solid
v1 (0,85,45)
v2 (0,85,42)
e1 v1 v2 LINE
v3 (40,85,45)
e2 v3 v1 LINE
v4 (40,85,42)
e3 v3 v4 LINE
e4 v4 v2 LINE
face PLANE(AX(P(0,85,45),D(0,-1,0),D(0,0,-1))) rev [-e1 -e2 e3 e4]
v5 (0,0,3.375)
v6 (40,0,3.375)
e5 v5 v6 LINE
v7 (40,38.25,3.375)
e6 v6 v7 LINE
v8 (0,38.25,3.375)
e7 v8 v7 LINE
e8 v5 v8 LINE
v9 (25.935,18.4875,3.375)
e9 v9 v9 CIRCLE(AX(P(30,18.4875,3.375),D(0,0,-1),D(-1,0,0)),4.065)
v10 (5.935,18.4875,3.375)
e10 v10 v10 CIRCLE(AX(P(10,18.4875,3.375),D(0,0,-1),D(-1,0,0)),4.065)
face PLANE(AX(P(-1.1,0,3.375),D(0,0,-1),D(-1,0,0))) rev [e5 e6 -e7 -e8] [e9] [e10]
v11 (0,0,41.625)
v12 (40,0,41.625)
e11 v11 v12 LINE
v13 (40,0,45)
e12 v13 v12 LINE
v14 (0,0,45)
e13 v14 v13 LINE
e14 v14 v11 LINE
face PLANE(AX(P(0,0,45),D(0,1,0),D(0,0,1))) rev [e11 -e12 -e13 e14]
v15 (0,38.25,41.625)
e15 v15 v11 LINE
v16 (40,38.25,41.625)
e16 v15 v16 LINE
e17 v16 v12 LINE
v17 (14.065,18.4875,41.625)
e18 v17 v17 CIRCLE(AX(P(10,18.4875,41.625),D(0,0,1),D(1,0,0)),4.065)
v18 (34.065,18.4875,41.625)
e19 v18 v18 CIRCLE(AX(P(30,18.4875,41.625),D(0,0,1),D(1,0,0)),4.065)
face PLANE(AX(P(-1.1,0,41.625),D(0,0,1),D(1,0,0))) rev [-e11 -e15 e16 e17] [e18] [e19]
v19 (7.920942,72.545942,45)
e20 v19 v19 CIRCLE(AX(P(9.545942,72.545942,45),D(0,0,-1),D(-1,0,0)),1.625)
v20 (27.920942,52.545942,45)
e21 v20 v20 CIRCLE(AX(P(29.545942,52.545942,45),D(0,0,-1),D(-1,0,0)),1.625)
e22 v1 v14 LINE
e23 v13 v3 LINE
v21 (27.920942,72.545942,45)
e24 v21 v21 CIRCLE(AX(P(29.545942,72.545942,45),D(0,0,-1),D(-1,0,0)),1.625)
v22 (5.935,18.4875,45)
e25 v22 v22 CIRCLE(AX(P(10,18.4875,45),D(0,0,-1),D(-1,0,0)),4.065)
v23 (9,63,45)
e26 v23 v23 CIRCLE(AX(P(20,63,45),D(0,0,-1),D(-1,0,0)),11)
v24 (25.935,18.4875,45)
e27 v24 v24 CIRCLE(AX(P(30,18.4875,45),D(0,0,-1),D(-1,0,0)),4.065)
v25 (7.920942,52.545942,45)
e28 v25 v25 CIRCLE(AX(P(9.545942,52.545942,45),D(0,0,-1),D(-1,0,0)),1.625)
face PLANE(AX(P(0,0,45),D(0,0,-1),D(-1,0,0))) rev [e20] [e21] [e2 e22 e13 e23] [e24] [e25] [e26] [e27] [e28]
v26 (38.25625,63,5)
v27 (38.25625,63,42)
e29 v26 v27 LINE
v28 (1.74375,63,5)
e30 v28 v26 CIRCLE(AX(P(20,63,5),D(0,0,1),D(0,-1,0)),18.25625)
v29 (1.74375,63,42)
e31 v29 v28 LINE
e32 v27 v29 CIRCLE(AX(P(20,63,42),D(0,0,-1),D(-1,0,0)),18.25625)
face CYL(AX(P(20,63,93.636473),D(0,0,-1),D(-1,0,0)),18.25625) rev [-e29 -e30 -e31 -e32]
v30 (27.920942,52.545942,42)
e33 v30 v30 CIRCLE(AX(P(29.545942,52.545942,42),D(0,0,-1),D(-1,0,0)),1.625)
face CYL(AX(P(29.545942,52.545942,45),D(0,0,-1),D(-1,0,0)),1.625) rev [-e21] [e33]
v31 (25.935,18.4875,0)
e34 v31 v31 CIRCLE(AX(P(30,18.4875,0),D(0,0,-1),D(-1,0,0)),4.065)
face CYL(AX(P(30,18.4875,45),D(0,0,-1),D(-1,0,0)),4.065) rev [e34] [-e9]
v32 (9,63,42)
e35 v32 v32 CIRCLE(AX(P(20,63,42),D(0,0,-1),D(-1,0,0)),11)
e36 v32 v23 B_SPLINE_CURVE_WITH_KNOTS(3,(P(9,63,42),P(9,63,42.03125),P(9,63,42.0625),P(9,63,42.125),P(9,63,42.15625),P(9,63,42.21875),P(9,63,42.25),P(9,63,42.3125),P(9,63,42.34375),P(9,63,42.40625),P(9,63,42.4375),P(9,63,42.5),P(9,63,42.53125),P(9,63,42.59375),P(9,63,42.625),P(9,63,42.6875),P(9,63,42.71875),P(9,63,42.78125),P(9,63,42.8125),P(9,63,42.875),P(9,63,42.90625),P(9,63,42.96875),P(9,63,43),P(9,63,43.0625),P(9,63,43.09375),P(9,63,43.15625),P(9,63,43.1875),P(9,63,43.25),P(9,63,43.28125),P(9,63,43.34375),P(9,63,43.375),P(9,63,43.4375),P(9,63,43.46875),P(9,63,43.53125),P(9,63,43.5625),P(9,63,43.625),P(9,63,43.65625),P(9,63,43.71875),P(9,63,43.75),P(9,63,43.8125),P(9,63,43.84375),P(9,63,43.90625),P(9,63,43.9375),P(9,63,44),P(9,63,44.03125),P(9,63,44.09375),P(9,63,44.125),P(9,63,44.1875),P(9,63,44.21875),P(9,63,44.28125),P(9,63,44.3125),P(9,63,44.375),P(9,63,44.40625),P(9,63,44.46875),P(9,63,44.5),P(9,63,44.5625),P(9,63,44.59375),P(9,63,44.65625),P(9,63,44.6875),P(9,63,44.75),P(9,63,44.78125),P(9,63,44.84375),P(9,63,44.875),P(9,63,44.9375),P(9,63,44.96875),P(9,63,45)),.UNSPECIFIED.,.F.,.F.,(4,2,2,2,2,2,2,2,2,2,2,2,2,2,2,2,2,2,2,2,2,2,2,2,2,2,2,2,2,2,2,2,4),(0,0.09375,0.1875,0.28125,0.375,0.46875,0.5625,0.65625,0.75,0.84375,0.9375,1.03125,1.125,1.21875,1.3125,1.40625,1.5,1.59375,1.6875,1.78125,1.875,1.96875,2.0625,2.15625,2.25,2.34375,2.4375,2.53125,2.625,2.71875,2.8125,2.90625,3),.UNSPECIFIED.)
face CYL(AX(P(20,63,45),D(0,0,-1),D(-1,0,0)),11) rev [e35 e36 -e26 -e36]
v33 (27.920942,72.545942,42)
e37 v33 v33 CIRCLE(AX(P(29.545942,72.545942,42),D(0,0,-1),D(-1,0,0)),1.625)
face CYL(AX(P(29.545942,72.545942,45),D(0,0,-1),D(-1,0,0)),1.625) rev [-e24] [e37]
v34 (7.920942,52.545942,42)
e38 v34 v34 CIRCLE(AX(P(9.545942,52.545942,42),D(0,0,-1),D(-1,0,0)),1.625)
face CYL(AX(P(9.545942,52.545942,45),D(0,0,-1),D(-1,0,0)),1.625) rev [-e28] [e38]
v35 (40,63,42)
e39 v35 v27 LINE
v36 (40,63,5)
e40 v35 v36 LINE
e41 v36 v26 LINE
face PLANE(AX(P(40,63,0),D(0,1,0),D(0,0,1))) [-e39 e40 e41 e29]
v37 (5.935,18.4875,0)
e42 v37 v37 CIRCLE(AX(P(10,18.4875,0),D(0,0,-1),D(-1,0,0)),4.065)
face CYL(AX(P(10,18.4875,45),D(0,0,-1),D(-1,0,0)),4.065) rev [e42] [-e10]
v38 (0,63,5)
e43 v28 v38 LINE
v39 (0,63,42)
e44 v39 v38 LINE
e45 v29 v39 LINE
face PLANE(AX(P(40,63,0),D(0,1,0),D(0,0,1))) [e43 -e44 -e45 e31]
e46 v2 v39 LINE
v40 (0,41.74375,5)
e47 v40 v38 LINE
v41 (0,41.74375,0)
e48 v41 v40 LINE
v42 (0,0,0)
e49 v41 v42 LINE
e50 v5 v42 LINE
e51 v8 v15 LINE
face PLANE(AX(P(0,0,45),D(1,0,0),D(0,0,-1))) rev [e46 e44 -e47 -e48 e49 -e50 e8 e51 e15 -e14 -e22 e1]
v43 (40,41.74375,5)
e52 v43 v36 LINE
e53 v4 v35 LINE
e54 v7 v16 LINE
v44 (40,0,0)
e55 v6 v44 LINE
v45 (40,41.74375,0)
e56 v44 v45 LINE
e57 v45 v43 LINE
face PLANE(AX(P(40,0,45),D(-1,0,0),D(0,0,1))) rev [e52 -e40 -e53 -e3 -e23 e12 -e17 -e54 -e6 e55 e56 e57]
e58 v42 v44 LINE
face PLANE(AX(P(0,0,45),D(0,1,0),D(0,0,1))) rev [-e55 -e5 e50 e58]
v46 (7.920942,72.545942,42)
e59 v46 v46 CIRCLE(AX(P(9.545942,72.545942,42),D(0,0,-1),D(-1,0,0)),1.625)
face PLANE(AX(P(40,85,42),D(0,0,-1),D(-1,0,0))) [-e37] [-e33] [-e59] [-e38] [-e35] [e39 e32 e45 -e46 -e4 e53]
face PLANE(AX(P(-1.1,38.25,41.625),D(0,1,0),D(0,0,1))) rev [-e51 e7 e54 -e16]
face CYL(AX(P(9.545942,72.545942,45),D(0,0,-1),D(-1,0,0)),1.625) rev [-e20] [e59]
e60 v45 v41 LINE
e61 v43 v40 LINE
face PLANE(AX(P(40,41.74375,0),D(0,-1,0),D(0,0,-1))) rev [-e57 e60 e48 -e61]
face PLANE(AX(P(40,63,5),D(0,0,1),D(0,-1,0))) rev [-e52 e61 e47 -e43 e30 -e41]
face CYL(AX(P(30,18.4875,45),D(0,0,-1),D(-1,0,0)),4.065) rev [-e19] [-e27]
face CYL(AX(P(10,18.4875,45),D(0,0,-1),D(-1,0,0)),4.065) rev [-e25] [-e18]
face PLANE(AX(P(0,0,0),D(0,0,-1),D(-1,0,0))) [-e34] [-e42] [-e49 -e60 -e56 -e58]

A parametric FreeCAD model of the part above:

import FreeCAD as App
import Part
import Sketcher


def add_polygon(sketch, points):
    """Adds a closed chain of lines whose ends are joined by coincident constraints."""
    first, n = sketch.GeometryCount, len(points)
    for a, b in zip(points, points[1:] + points[:1]):
        sketch.addGeometry(Part.LineSegment(App.Vector(*a, 0), App.Vector(*b, 0)), False)
    for i in range(n):
        sketch.addConstraint(Sketcher.Constraint("Coincident", first + i, 2, first + (i + 1) % n, 1))

doc = App.newDocument("Part")
body = doc.addObject("PartDesign::Body", "Body")

# Sketch on XY plane
sketch1 = doc.addObject("Sketcher::SketchObject", "Sketch")
body.addObject(sketch1)
sketch1.AttachmentSupport = (doc.XY_Plane, [""])
sketch1.MapMode = "FlatFace"
add_polygon(sketch1, [(0, 85), (0, 0), (40, 0), (40, 85)])  # lines 0-3
sketch1.addConstraint(Sketcher.Constraint("Vertical", 0))
sketch1.addConstraint(Sketcher.Constraint("Horizontal", 1))
sketch1.addConstraint(Sketcher.Constraint("Vertical", 2))
sketch1.addConstraint(Sketcher.Constraint("Horizontal", 3))
sketch1.addConstraint(Sketcher.Constraint("Coincident", 0, 2, -1, 1))
sketch1.addConstraint(Sketcher.Constraint("DistanceX", 1, 1, 1, 2, 40.0))
sketch1.addConstraint(Sketcher.Constraint("DistanceY", 0, 2, 0, 1, 85.0))
pad1 = doc.addObject("PartDesign::Pad", "Pad")
body.addObject(pad1)
pad1.Profile = sketch1
pad1.Length = 45

# Sketch on YZ plane
sketch2 = doc.addObject("Sketcher::SketchObject", "Sketch001")
body.addObject(sketch2)
sketch2.AttachmentSupport = (doc.YZ_Plane, [""])
sketch2.MapMode = "FlatFace"
sketch2.AttachmentOffset = App.Placement(App.Vector(0, 0, 40), App.Rotation())
add_polygon(sketch2, [(38, 42), (0, 42), (0, 3), (38, 3)])  # lines 0-3
sketch2.addConstraint(Sketcher.Constraint("Horizontal", 0))
sketch2.addConstraint(Sketcher.Constraint("Vertical", 1))
sketch2.addConstraint(Sketcher.Constraint("Horizontal", 2))
sketch2.addConstraint(Sketcher.Constraint("Vertical", 3))
sketch2.addConstraint(Sketcher.Constraint("PointOnObject", 0, 2, -2))
sketch2.addConstraint(Sketcher.Constraint("Equal", 2, 1))
sketch2.addConstraint(Sketcher.Constraint("DistanceX", 0, 2, 0, 1, 38.25))
sketch2.addConstraint(Sketcher.Constraint("DistanceY", -1, 1, 0, 2, 41.625))
pocket1 = doc.addObject("PartDesign::Pocket", "Pocket")
body.addObject(pocket1)
pocket1.Profile = sketch2
pocket1.Length = 41.1

# Sketch on YZ plane
sketch3 = doc.addObject("Sketcher::SketchObject", "Sketch002")
body.addObject(sketch3)
sketch3.AttachmentSupport = (doc.YZ_Plane, [""])
sketch3.MapMode = "FlatFace"
add_polygon(sketch3, [(85, 42), (63, 42), (63, 0), (85, 0)])  # lines 0-3
sketch3.addConstraint(Sketcher.Constraint("Horizontal", 0))
sketch3.addConstraint(Sketcher.Constraint("Vertical", 1))
sketch3.addConstraint(Sketcher.Constraint("Horizontal", 2))
sketch3.addConstraint(Sketcher.Constraint("Vertical", 3))
sketch3.addConstraint(Sketcher.Constraint("PointOnObject", 1, 2, -1))
sketch3.addConstraint(Sketcher.Constraint("DistanceX", 0, 2, 0, 1, 22.0))
sketch3.addConstraint(Sketcher.Constraint("DistanceY", 1, 2, 1, 1, 42.0))
sketch3.addConstraint(Sketcher.Constraint("DistanceX", -1, 1, 0, 2, 63.0))
pocket2 = doc.addObject("PartDesign::Pocket", "Pocket001")
body.addObject(pocket2)
pocket2.Profile = sketch3
pocket2.Type = "ThroughAll"
pocket2.Reversed = True

# Sketch on XY plane
sketch4 = doc.addObject("Sketcher::SketchObject", "Sketch003")
body.addObject(sketch4)
sketch4.AttachmentSupport = (doc.XY_Plane, [""])
sketch4.MapMode = "FlatFace"
sketch4.addGeometry(Part.Circle(App.Vector(20, 63, 0), App.Vector(0, 0, 1), 18), False)
sketch4.addConstraint(Sketcher.Constraint("DistanceX", -1, 1, 0, 3, 20.0))
sketch4.addConstraint(Sketcher.Constraint("DistanceY", -1, 1, 0, 3, 63.0))
sketch4.addConstraint(Sketcher.Constraint("Diameter", 0, 36.5125))
pocket3 = doc.addObject("PartDesign::Pocket", "Pocket002")
body.addObject(pocket3)
pocket3.Profile = sketch4
pocket3.Length = 42
pocket3.Reversed = True

# Sketch on XY plane
sketch5 = doc.addObject("Sketcher::SketchObject", "Sketch004")
body.addObject(sketch5)
sketch5.AttachmentSupport = (doc.XY_Plane, [""])
sketch5.MapMode = "FlatFace"
sketch5.addGeometry(Part.Circle(App.Vector(20, 63, 0), App.Vector(0, 0, 1), 11), False)
sketch5.addConstraint(Sketcher.Constraint("Diameter", 0, 22.0))
sketch5.addConstraint(Sketcher.Constraint("DistanceX", -1, 1, 0, 3, 20.0))
sketch5.addConstraint(Sketcher.Constraint("DistanceY", -1, 1, 0, 3, 63.0))
pocket4 = doc.addObject("PartDesign::Pocket", "Pocket003")
body.addObject(pocket4)
pocket4.Profile = sketch5
pocket4.Type = "ThroughAll"
pocket4.Midplane = True

# Sketch on XY plane
sketch6 = doc.addObject("Sketcher::SketchObject", "Sketch005")
body.addObject(sketch6)
sketch6.AttachmentSupport = (doc.XY_Plane, [""])
sketch6.MapMode = "FlatFace"
sketch6.AttachmentOffset = App.Placement(App.Vector(0, 0, 42), App.Rotation())
sketch6.addGeometry(Part.Circle(App.Vector(29.5, 72.5, 0), App.Vector(0, 0, 1), 1.6), False)
sketch6.addGeometry(Part.Circle(App.Vector(29.5, 52.5, 0), App.Vector(0, 0, 1), 1.6), False)
sketch6.addGeometry(Part.Circle(App.Vector(9.5, 52.5, 0), App.Vector(0, 0, 1), 1.6), False)
sketch6.addGeometry(Part.Circle(App.Vector(9.5, 72.5, 0), App.Vector(0, 0, 1), 1.6), False)
sketch6.addConstraint(Sketcher.Constraint("Equal", 0, 1))
sketch6.addConstraint(Sketcher.Constraint("Equal", 1, 2))
sketch6.addConstraint(Sketcher.Constraint("Equal", 2, 3))
sketch6.addConstraint(Sketcher.Constraint("Horizontal", 1, 3, 2, 3))
sketch6.addConstraint(Sketcher.Constraint("Horizontal", 0, 3, 3, 3))
sketch6.addConstraint(Sketcher.Constraint("Vertical", 0, 3, 1, 3))
sketch6.addConstraint(Sketcher.Constraint("Vertical", 2, 3, 3, 3))
sketch6.addConstraint(Sketcher.Constraint("Diameter", 0, 3.25))
sketch6.addConstraint(Sketcher.Constraint("DistanceY", 1, 3, 0, 3, 20.0))
sketch6.addConstraint(Sketcher.Constraint("DistanceX", 2, 3, 1, 3, 20.0))
sketch6.addConstraint(Sketcher.Constraint("DistanceX", -1, 1, 0, 3, 29.545942))
sketch6.addConstraint(Sketcher.Constraint("DistanceY", -1, 1, 0, 3, 72.545942))
pocket5 = doc.addObject("PartDesign::Pocket", "Pocket004")
body.addObject(pocket5)
pocket5.Profile = sketch6
pocket5.Type = "ThroughAll"
pocket5.Reversed = True

# Sketch on XY plane
sketch7 = doc.addObject("Sketcher::SketchObject", "Sketch006")
body.addObject(sketch7)
sketch7.AttachmentSupport = (doc.XY_Plane, [""])
sketch7.MapMode = "FlatFace"
sketch7.AttachmentOffset = App.Placement(App.Vector(0, 0, 41.625), App.Rotation())
sketch7.addGeometry(Part.Circle(App.Vector(10, 18.5, 0), App.Vector(0, 0, 1), 4.1), False)
sketch7.addGeometry(Part.Circle(App.Vector(30, 18.5, 0), App.Vector(0, 0, 1), 4.1), False)
sketch7.addConstraint(Sketcher.Constraint("Equal", 0, 1))
sketch7.addConstraint(Sketcher.Constraint("Horizontal", 0, 3, 1, 3))
sketch7.addConstraint(Sketcher.Constraint("Diameter", 0, 8.13))
sketch7.addConstraint(Sketcher.Constraint("DistanceX", -1, 1, 0, 3, 10.0))
sketch7.addConstraint(Sketcher.Constraint("DistanceX", -1, 1, 1, 3, 30.0))
sketch7.addConstraint(Sketcher.Constraint("DistanceY", -1, 1, 0, 3, 18.4875))
pocket6 = doc.addObject("PartDesign::Pocket", "Pocket005")
body.addObject(pocket6)
pocket6.Profile = sketch7
pocket6.Type = "ThroughAll"
pocket6.Midplane = True

# Sketch on YZ plane
sketch8 = doc.addObject("Sketcher::SketchObject", "Sketch007")
body.addObject(sketch8)
sketch8.AttachmentSupport = (doc.YZ_Plane, [""])
sketch8.MapMode = "FlatFace"
add_polygon(sketch8, [(63, 0), (42, 0), (42, 5), (63, 5)])  # lines 0-3
sketch8.addConstraint(Sketcher.Constraint("Horizontal", 0))
sketch8.addConstraint(Sketcher.Constraint("Vertical", 1))
sketch8.addConstraint(Sketcher.Constraint("Horizontal", 2))
sketch8.addConstraint(Sketcher.Constraint("Vertical", 3))
sketch8.addConstraint(Sketcher.Constraint("PointOnObject", 0, 2, -1))
sketch8.addConstraint(Sketcher.Constraint("DistanceY", 1, 1, 1, 2, 5.0))
sketch8.addConstraint(Sketcher.Constraint("DistanceX", -1, 1, 2, 2, 63.0))
sketch8.addConstraint(Sketcher.Constraint("DistanceX", 0, 2, 0, 1, 21.25625))
pocket7 = doc.addObject("PartDesign::Pocket", "Pocket006")
body.addObject(pocket7)
pocket7.Profile = sketch8
pocket7.Type = "ThroughAll"
pocket7.Reversed = True

doc.recompute()
